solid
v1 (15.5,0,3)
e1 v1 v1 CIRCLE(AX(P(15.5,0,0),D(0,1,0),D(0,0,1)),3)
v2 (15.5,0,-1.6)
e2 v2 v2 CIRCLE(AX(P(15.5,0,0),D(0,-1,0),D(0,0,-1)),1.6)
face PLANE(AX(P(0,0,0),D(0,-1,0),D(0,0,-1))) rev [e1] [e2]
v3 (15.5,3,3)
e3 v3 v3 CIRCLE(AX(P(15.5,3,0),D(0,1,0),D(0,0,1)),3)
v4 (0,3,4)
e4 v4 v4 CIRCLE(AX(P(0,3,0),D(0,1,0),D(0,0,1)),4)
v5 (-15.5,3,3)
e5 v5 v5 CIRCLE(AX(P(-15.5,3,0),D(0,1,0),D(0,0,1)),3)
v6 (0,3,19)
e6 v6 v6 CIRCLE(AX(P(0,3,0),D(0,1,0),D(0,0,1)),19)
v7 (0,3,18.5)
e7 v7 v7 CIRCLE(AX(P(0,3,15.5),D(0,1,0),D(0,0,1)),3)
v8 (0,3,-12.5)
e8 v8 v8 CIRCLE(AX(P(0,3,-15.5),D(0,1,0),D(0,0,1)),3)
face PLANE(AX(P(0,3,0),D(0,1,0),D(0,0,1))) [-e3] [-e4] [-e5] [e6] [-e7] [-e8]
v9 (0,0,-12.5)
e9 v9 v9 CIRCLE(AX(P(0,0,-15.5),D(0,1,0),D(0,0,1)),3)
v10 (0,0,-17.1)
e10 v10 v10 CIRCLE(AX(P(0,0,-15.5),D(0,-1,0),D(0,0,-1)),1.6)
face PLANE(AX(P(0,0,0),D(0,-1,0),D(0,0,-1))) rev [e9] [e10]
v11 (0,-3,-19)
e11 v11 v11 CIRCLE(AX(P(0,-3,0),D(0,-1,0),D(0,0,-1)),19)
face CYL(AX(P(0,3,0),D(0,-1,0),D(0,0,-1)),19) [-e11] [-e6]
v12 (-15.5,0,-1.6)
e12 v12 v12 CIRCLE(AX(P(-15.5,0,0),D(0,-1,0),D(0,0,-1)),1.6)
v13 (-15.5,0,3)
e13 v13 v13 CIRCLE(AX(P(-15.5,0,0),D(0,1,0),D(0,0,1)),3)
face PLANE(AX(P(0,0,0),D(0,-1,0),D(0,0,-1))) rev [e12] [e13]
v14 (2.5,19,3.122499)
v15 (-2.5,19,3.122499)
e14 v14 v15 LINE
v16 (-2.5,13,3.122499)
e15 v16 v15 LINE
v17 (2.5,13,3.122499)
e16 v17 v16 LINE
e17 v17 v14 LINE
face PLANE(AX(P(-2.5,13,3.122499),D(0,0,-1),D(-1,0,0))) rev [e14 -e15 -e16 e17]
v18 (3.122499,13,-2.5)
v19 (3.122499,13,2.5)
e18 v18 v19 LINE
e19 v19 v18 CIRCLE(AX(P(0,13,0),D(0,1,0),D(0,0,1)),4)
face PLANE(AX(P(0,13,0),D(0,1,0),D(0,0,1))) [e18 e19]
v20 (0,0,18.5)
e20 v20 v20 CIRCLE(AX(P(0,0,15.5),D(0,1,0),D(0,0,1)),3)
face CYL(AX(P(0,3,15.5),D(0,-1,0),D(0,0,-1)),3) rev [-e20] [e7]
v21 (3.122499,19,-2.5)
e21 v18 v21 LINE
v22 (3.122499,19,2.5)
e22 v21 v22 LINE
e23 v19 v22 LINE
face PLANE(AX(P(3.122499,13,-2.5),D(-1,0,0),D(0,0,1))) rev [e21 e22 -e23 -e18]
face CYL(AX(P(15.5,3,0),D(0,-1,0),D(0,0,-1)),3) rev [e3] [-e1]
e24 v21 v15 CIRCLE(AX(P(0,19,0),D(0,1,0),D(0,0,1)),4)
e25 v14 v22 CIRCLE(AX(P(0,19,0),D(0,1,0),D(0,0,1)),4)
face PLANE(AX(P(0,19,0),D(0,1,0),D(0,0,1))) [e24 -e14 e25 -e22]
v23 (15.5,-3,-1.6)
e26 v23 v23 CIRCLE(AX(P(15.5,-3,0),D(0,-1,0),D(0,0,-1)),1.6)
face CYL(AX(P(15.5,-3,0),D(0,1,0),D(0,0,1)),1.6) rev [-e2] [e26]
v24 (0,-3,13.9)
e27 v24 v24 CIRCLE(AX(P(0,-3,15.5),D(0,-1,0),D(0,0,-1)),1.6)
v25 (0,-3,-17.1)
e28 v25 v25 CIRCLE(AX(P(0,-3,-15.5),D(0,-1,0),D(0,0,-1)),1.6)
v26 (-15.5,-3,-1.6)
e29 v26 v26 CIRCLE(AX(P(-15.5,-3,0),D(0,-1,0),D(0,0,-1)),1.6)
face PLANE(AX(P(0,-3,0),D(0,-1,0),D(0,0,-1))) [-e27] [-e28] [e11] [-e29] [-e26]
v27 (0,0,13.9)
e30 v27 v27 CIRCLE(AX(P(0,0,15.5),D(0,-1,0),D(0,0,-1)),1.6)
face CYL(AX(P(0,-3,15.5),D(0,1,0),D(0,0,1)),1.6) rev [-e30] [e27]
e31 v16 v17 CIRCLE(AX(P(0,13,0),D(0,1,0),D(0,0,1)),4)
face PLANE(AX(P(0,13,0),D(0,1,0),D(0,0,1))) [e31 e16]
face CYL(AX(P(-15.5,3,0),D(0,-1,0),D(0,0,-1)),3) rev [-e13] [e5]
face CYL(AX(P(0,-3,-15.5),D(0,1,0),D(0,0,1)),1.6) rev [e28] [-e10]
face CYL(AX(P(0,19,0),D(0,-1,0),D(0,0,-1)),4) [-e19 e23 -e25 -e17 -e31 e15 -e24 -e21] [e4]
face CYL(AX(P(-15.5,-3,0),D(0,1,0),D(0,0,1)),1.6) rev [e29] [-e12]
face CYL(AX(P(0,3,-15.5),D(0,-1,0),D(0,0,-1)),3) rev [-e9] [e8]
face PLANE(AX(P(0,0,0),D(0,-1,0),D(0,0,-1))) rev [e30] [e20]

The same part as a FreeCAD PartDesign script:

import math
import FreeCAD as App
import Part
import Sketcher

V = App.Vector

doc = App.newDocument("Part")
params = doc.addObject("Spreadsheet::Sheet", "Params")
for row, (alias, value) in enumerate([
    ("sketch1_diameter", "38 mm"),
    ("sketch1_diameter2", "6 mm"),
    ("pad1_length", "3 mm"),
    ("sketch2_diameter", "8 mm"),
    ("pad2_length", "16 mm"),
    ("sketch3_radius", "4 mm"),
    ("sketch3_width", "5 mm"),
    ("pocket1_length", "6 mm"),
    ("sketch4_diameter", "38 mm"),
    ("sketch4_diameter2", "3.2 mm"),
    ("pad3_length", "3 mm"),
], start=1):
    params.set(f"A{row}", alias)
    params.set(f"B{row}", "=" + value)
    params.setAlias(f"B{row}", alias)

body = doc.addObject("PartDesign::Body", "Body")

sketch1 = body.newObject("Sketcher::SketchObject", "Sketch")
sketch1.AttachmentSupport = (doc.getObject("XZ_Plane"), [""])
sketch1.MapMode = "FlatFace"
sketch1.addGeometry([
    Part.Circle(V(0, 0, 0), V(0, 0, 1), 19),
    Part.Circle(V(0, -15.5, 0), V(0, 0, 1), 3),
    Part.Circle(V(-15.5, 0, 0), V(0, 0, 1), 3),
    Part.Circle(V(0, 15.5, 0), V(0, 0, 1), 3),
    Part.Circle(V(15.5, 0, 0), V(0, 0, 1), 3),
], False)
sketch1.addConstraint([
    Sketcher.Constraint("Coincident", 0, 3, -1, 1),
    Sketcher.Constraint("Equal", 1, 2),
    Sketcher.Constraint("Equal", 2, 3),
    Sketcher.Constraint("Equal", 3, 4),
    Sketcher.Constraint("Symmetric", 1, 3, 3, 3, -1, 1),
    Sketcher.Constraint("Symmetric", 2, 3, 4, 3, -1, 1),
    Sketcher.Constraint("PointOnObject", 1, 3, -2),
    Sketcher.Constraint("PointOnObject", 2, 3, -1),
    Sketcher.Constraint("Diameter", 0, 38.0),
    Sketcher.Constraint("Diameter", 1, 6.0),
    Sketcher.Constraint("DistanceY", 1, 3, 3, 3, 31.0),
    Sketcher.Constraint("DistanceX", 2, 3, 4, 3, 31.0),
])
sketch1.setExpression("Constraints[8]", "Params.sketch1_diameter")
sketch1.setExpression("Constraints[9]", "Params.sketch1_diameter2")
pad1 = body.newObject("PartDesign::Pad", "Pad")
pad1.Profile = sketch1
pad1.setExpression("Length", "Params.pad1_length")
pad1.Reversed = True

sketch2 = body.newObject("Sketcher::SketchObject", "Sketch001")
sketch2.AttachmentSupport = (doc.getObject("XZ_Plane"), [""])
sketch2.MapMode = "FlatFace"
sketch2.AttachmentOffset = App.Placement(V(0, 0, -3), App.Rotation())
sketch2.addGeometry(Part.Circle(V(0, 0, 0), V(0, 0, 1), 4), False)
sketch2.addConstraint([
    Sketcher.Constraint("Coincident", 0, 3, -1, 1),
    Sketcher.Constraint("Diameter", 0, 8.0),
])
sketch2.setExpression("Constraints[1]", "Params.sketch2_diameter")
pad2 = body.newObject("PartDesign::Pad", "Pad001")
pad2.Profile = sketch2
pad2.setExpression("Length", "Params.pad2_length")
pad2.Reversed = True

sketch3 = body.newObject("Sketcher::SketchObject", "Sketch002")
sketch3.AttachmentSupport = (doc.getObject("XZ_Plane"), [""])
sketch3.MapMode = "FlatFace"
sketch3.AttachmentOffset = App.Placement(V(0, 0, -13), App.Rotation())
sketch3.addGeometry([
    Part.LineSegment(V(2.5, 3.122499, 0), V(-2.5, 3.122499, 0)),
    Part.ArcOfCircle(Part.Circle(V(0, 0, 0), V(0, 0, 1), 4), math.radians(51.317813), math.radians(128.682187)),
    Part.LineSegment(V(3.122499, -2.5, 0), V(3.122499, 2.5, 0)),
    Part.ArcOfCircle(Part.Circle(V(0, 0, 0), V(0, 0, 1), 4), math.radians(-38.682187), math.radians(38.682187)),
], False)
sketch3.addConstraint([
    Sketcher.Constraint("Coincident", 0, 1, 1, 1),
    Sketcher.Constraint("Coincident", 1, 2, 0, 2),
    Sketcher.Constraint("Coincident", 2, 1, 3, 1),
    Sketcher.Constraint("Coincident", 3, 2, 2, 2),
    Sketcher.Constraint("Horizontal", 0),
    Sketcher.Constraint("Vertical", 2),
    Sketcher.Constraint("Coincident", 1, 3, -1, 1),
    Sketcher.Constraint("Coincident", 3, 3, -1, 1),
    Sketcher.Constraint("Equal", 1, 3),
    Sketcher.Constraint("Equal", 0, 2),
    Sketcher.Constraint("Radius", 1, 4.0),
    Sketcher.Constraint("DistanceX", 0, 2, 0, 1, 5.0),
])
sketch3.setExpression("Constraints[10]", "Params.sketch3_radius")
sketch3.setExpression("Constraints[11]", "Params.sketch3_width")
pocket1 = body.newObject("PartDesign::Pocket", "Pocket")
pocket1.Profile = sketch3
pocket1.setExpression("Length", "Params.pocket1_length")

sketch4 = body.newObject("Sketcher::SketchObject", "Sketch003")
sketch4.AttachmentSupport = (doc.getObject("XZ_Plane"), [""])
sketch4.MapMode = "FlatFace"
sketch4.AttachmentOffset = App.Placement(V(0, 0, 3), App.Rotation())
sketch4.addGeometry([
    Part.Circle(V(0, 0, 0), V(0, 0, 1), 19),
    Part.Circle(V(0, 15.5, 0), V(0, 0, 1), 1.6),
    Part.Circle(V(-15.5, 0, 0), V(0, 0, 1), 1.6),
    Part.Circle(V(15.5, 0, 0), V(0, 0, 1), 1.6),
    Part.Circle(V(0, -15.5, 0), V(0, 0, 1), 1.6),
], False)
sketch4.addConstraint([
    Sketcher.Constraint("Coincident", 0, 3, -1, 1),
    Sketcher.Constraint("Equal", 1, 2),
    Sketcher.Constraint("Equal", 2, 3),
    Sketcher.Constraint("Equal", 3, 4),
    Sketcher.Constraint("Symmetric", 2, 3, 3, 3, -1, 1),
    Sketcher.Constraint("Symmetric", 1, 3, 4, 3, -1, 1),
    Sketcher.Constraint("PointOnObject", 1, 3, -2),
    Sketcher.Constraint("PointOnObject", 2, 3, -1),
    Sketcher.Constraint("Diameter", 0, 38.0),
    Sketcher.Constraint("Diameter", 1, 3.2),
    Sketcher.Constraint("DistanceX", 2, 3, 3, 3, 31.0),
    Sketcher.Constraint("DistanceY", 4, 3, 1, 3, 31.0),
])
sketch4.setExpression("Constraints[8]", "Params.sketch4_diameter")
sketch4.setExpression("Constraints[9]", "Params.sketch4_diameter2")
pad3 = body.newObject("PartDesign::Pad", "Pad002")
pad3.Profile = sketch4
pad3.setExpression("Length", "Params.pad3_length")
pad3.Reversed = True

doc.recompute()
